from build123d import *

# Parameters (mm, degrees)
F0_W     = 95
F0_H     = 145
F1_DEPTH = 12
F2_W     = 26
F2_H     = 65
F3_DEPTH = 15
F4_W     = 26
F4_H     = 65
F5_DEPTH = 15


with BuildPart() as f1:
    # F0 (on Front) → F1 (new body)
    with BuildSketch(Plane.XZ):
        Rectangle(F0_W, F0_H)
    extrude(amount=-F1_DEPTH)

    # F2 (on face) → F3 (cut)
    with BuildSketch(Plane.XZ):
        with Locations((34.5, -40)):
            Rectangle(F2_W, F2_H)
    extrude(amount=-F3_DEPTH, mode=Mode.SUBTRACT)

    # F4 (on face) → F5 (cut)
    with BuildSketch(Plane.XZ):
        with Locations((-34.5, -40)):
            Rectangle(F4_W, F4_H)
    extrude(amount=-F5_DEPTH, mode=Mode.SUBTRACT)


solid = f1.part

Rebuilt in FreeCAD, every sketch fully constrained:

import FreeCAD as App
import Part
import Sketcher


def add_polygon(sketch, points):
    """Adds a closed chain of lines whose ends are joined by coincident constraints."""
    first, n = sketch.GeometryCount, len(points)
    for a, b in zip(points, points[1:] + points[:1]):
        sketch.addGeometry(Part.LineSegment(App.Vector(*a, 0), App.Vector(*b, 0)), False)
    for i in range(n):
        sketch.addConstraint(Sketcher.Constraint("Coincident", first + i, 2, first + (i + 1) % n, 1))

doc = App.newDocument("Part")
body = doc.addObject("PartDesign::Body", "Body")

# Sketch on XZ plane
sketch1 = doc.addObject("Sketcher::SketchObject", "Sketch")
body.addObject(sketch1)
sketch1.AttachmentSupport = (doc.XZ_Plane, [""])
sketch1.MapMode = "FlatFace"
add_polygon(sketch1, [(-48, 72), (-48, -72), (48, -72), (48, 72)])  # lines 0-3
sketch1.addConstraint(Sketcher.Constraint("Vertical", 0))
sketch1.addConstraint(Sketcher.Constraint("Horizontal", 1))
sketch1.addConstraint(Sketcher.Constraint("Vertical", 2))
sketch1.addConstraint(Sketcher.Constraint("Horizontal", 3))
sketch1.addConstraint(Sketcher.Constraint("Symmetric", 0, 2, 2, 2, -1, 1))
sketch1.addConstraint(Sketcher.Constraint("DistanceX", 1, 1, 1, 2, 95.0))
sketch1.addConstraint(Sketcher.Constraint("DistanceY", 0, 2, 0, 1, 145.0))
pad1 = doc.addObject("PartDesign::Pad", "Pad")
body.addObject(pad1)
pad1.Profile = sketch1
pad1.Length = 12
pad1.Reversed = True

# Sketch on XZ plane
sketch2 = doc.addObject("Sketcher::SketchObject", "Sketch001")
body.addObject(sketch2)
sketch2.AttachmentSupport = (doc.XZ_Plane, [""])
sketch2.MapMode = "FlatFace"
add_polygon(sketch2, [(22, -8), (22, -72), (48, -72), (48, -8)])  # lines 0-3
sketch2.addConstraint(Sketcher.Constraint("Vertical", 0))
sketch2.addConstraint(Sketcher.Constraint("Horizontal", 1))
sketch2.addConstraint(Sketcher.Constraint("Vertical", 2))
sketch2.addConstraint(Sketcher.Constraint("Horizontal", 3))
sketch2.addConstraint(Sketcher.Constraint("DistanceX", 1, 1, 1, 2, 26.0))
sketch2.addConstraint(Sketcher.Constraint("DistanceY", 0, 2, 0, 1, 65.0))
sketch2.addConstraint(Sketcher.Constraint("DistanceX", -1, 1, 0, 2, 21.5))
sketch2.addConstraint(Sketcher.Constraint("DistanceY", 0, 2, -1, 1, 72.5))
pocket1 = doc.addObject("PartDesign::Pocket", "Pocket")
body.addObject(pocket1)
pocket1.Profile = sketch2
pocket1.Length = 15

# Sketch on XZ plane
sketch3 = doc.addObject("Sketcher::SketchObject", "Sketch002")
body.addObject(sketch3)
sketch3.AttachmentSupport = (doc.XZ_Plane, [""])
sketch3.MapMode = "FlatFace"
add_polygon(sketch3, [(-48, -8), (-48, -72), (-22, -72), (-22, -8)])  # lines 0-3
sketch3.addConstraint(Sketcher.Constraint("Vertical", 0))
sketch3.addConstraint(Sketcher.Constraint("Horizontal", 1))
sketch3.addConstraint(Sketcher.Constraint("Vertical", 2))
sketch3.addConstraint(Sketcher.Constraint("Horizontal", 3))
sketch3.addConstraint(Sketcher.Constraint("DistanceX", 1, 1, 1, 2, 26.0))
sketch3.addConstraint(Sketcher.Constraint("DistanceY", 0, 2, 0, 1, 65.0))
sketch3.addConstraint(Sketcher.Constraint("DistanceX", 0, 2, -1, 1, 47.5))
sketch3.addConstraint(Sketcher.Constraint("DistanceY", 0, 2, -1, 1, 72.5))
pocket2 = doc.addObject("PartDesign::Pocket", "Pocket001")
body.addObject(pocket2)
pocket2.Profile = sketch3
pocket2.Length = 15

doc.recompute()
